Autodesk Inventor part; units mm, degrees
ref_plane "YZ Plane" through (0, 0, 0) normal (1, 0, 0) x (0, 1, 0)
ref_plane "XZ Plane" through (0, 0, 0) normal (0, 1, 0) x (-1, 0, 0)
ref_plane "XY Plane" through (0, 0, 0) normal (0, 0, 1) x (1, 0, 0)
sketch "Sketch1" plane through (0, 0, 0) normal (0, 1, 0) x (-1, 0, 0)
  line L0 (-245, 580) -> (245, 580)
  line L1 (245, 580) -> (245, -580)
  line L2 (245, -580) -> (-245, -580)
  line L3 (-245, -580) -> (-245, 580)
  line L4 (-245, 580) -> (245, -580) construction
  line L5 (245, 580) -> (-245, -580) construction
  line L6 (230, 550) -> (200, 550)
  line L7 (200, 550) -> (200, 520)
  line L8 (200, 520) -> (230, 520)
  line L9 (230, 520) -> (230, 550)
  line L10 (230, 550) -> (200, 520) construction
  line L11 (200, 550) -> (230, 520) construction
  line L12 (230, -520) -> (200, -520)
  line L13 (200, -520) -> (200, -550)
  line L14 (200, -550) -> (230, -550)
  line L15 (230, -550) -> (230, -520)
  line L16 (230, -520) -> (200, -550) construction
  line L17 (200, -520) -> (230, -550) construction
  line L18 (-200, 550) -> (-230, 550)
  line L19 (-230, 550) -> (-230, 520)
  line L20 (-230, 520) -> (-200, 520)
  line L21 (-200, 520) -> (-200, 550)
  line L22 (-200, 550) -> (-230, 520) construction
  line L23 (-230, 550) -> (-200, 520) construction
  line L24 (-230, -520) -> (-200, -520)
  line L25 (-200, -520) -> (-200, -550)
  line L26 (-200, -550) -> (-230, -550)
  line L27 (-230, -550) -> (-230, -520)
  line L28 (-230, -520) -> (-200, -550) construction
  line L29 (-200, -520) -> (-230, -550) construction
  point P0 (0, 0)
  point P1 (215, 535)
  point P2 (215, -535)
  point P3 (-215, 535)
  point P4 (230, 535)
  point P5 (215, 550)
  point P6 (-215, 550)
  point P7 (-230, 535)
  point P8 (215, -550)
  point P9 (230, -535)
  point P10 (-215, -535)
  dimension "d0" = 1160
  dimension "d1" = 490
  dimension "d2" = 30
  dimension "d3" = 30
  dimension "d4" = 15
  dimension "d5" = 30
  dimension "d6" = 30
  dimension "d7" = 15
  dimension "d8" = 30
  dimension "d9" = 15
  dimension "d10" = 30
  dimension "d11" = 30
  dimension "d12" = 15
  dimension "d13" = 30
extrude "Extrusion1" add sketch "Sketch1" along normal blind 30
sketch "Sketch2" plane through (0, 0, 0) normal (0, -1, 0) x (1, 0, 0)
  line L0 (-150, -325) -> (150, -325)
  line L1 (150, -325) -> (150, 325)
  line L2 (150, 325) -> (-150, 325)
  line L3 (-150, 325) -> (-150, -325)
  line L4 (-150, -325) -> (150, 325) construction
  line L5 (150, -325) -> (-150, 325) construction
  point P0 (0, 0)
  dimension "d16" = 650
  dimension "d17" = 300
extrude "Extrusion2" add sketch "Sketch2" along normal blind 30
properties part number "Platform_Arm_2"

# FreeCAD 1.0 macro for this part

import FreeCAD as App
import Part
import Sketcher

V = App.Vector

doc = App.newDocument("Part")
body = doc.addObject("PartDesign::Body", "Body")

# Sketch on XZ plane
sketch1 = doc.addObject("Sketcher::SketchObject", "Sketch")
body.addObject(sketch1)
sketch1.AttachmentSupport = (doc.XZ_Plane, [""])
sketch1.MapMode = "FlatFace"
sketch1.addGeometry(Part.LineSegment(V(-245, 580, 0), V(245, 580, 0)), False)
sketch1.addGeometry(Part.LineSegment(V(245, 580, 0), V(245, -580, 0)), False)
sketch1.addGeometry(Part.LineSegment(V(245, -580, 0), V(-245, -580, 0)), False)
sketch1.addGeometry(Part.LineSegment(V(-245, -580, 0), V(-245, 580, 0)), False)
sketch1.addGeometry(Part.LineSegment(V(230, -550, 0), V(230, -520, 0)), False)
sketch1.addGeometry(Part.LineSegment(V(230, -520, 0), V(200, -520, 0)), False)
sketch1.addGeometry(Part.LineSegment(V(200, -520, 0), V(200, -550, 0)), False)
sketch1.addGeometry(Part.LineSegment(V(200, -550, 0), V(230, -550, 0)), False)
sketch1.addGeometry(Part.LineSegment(V(-200, -520, 0), V(-230, -520, 0)), False)
sketch1.addGeometry(Part.LineSegment(V(-230, -520, 0), V(-230, -550, 0)), False)
sketch1.addGeometry(Part.LineSegment(V(-230, -550, 0), V(-200, -550, 0)), False)
sketch1.addGeometry(Part.LineSegment(V(-200, -550, 0), V(-200, -520, 0)), False)
sketch1.addGeometry(Part.LineSegment(V(230, 550, 0), V(200, 550, 0)), False)
sketch1.addGeometry(Part.LineSegment(V(200, 550, 0), V(200, 520, 0)), False)
sketch1.addGeometry(Part.LineSegment(V(200, 520, 0), V(230, 520, 0)), False)
sketch1.addGeometry(Part.LineSegment(V(230, 520, 0), V(230, 550, 0)), False)
sketch1.addGeometry(Part.LineSegment(V(-200, 550, 0), V(-230, 550, 0)), False)
sketch1.addGeometry(Part.LineSegment(V(-230, 550, 0), V(-230, 520, 0)), False)
sketch1.addGeometry(Part.LineSegment(V(-230, 520, 0), V(-200, 520, 0)), False)
sketch1.addGeometry(Part.LineSegment(V(-200, 520, 0), V(-200, 550, 0)), False)
sketch1.addConstraint(Sketcher.Constraint("Coincident", 0, 2, 1, 1))
sketch1.addConstraint(Sketcher.Constraint("Coincident", 1, 2, 2, 1))
sketch1.addConstraint(Sketcher.Constraint("Coincident", 2, 2, 3, 1))
sketch1.addConstraint(Sketcher.Constraint("Coincident", 3, 2, 0, 1))
sketch1.addConstraint(Sketcher.Constraint("Coincident", 4, 2, 5, 1))
sketch1.addConstraint(Sketcher.Constraint("Coincident", 5, 2, 6, 1))
sketch1.addConstraint(Sketcher.Constraint("Coincident", 6, 2, 7, 1))
sketch1.addConstraint(Sketcher.Constraint("Coincident", 7, 2, 4, 1))
sketch1.addConstraint(Sketcher.Constraint("Coincident", 8, 2, 9, 1))
sketch1.addConstraint(Sketcher.Constraint("Coincident", 9, 2, 10, 1))
sketch1.addConstraint(Sketcher.Constraint("Coincident", 10, 2, 11, 1))
sketch1.addConstraint(Sketcher.Constraint("Coincident", 11, 2, 8, 1))
sketch1.addConstraint(Sketcher.Constraint("Coincident", 12, 2, 13, 1))
sketch1.addConstraint(Sketcher.Constraint("Coincident", 13, 2, 14, 1))
sketch1.addConstraint(Sketcher.Constraint("Coincident", 14, 2, 15, 1))
sketch1.addConstraint(Sketcher.Constraint("Coincident", 15, 2, 12, 1))
sketch1.addConstraint(Sketcher.Constraint("Coincident", 16, 2, 17, 1))
sketch1.addConstraint(Sketcher.Constraint("Coincident", 17, 2, 18, 1))
sketch1.addConstraint(Sketcher.Constraint("Coincident", 18, 2, 19, 1))
sketch1.addConstraint(Sketcher.Constraint("Coincident", 19, 2, 16, 1))
sketch1.addConstraint(Sketcher.Constraint("Horizontal", 0))
sketch1.addConstraint(Sketcher.Constraint("Vertical", 1))
sketch1.addConstraint(Sketcher.Constraint("Horizontal", 2))
sketch1.addConstraint(Sketcher.Constraint("Vertical", 3))
sketch1.addConstraint(Sketcher.Constraint("Vertical", 4))
sketch1.addConstraint(Sketcher.Constraint("Horizontal", 5))
sketch1.addConstraint(Sketcher.Constraint("Vertical", 6))
sketch1.addConstraint(Sketcher.Constraint("Horizontal", 7))
sketch1.addConstraint(Sketcher.Constraint("Horizontal", 8))
sketch1.addConstraint(Sketcher.Constraint("Vertical", 9))
sketch1.addConstraint(Sketcher.Constraint("Horizontal", 10))
sketch1.addConstraint(Sketcher.Constraint("Vertical", 11))
sketch1.addConstraint(Sketcher.Constraint("Horizontal", 12))
sketch1.addConstraint(Sketcher.Constraint("Vertical", 13))
sketch1.addConstraint(Sketcher.Constraint("Horizontal", 14))
sketch1.addConstraint(Sketcher.Constraint("Vertical", 15))
sketch1.addConstraint(Sketcher.Constraint("Horizontal", 16))
sketch1.addConstraint(Sketcher.Constraint("Vertical", 17))
sketch1.addConstraint(Sketcher.Constraint("Horizontal", 18))
sketch1.addConstraint(Sketcher.Constraint("Vertical", 19))
sketch1.addConstraint(Sketcher.Constraint("Symmetric", 0, 2, 2, 2, -1, 1))
sketch1.addConstraint(Sketcher.Constraint("Symmetric", 10, 2, 12, 2, -1, 1))
sketch1.addConstraint(Sketcher.Constraint("Symmetric", 8, 2, 14, 2, -1, 1))
sketch1.addConstraint(Sketcher.Constraint("Symmetric", 7, 2, 16, 2, -1, 1))
sketch1.addConstraint(Sketcher.Constraint("Symmetric", 5, 2, 18, 2, -1, 1))
sketch1.addConstraint(Sketcher.Constraint("Symmetric", 4, 2, 8, 2, -2))
sketch1.addConstraint(Sketcher.Constraint("Symmetric", 6, 2, 10, 2, -2))
sketch1.addConstraint(Sketcher.Constraint("Equal", 18, 4))
sketch1.addConstraint(Sketcher.Constraint("DistanceX", 0, 1, 0, 2, 490.0))
sketch1.addConstraint(Sketcher.Constraint("DistanceX", 5, 2, 5, 1, 30.0))
sketch1.addConstraint(Sketcher.Constraint("DistanceY", 1, 2, 1, 1, 1160.0))
sketch1.addConstraint(Sketcher.Constraint("DistanceX", 4, 2, 1, 2, 15.0))
sketch1.addConstraint(Sketcher.Constraint("DistanceY", 1, 2, 6, 2, 30.0))
pad1 = doc.addObject("PartDesign::Pad", "Pad")
body.addObject(pad1)
pad1.Profile = sketch1
pad1.Length = 30
pad1.Reversed = True

# Sketch on XZ plane
sketch2 = doc.addObject("Sketcher::SketchObject", "Sketch001")
body.addObject(sketch2)
sketch2.AttachmentSupport = (doc.XZ_Plane, [""])
sketch2.MapMode = "FlatFace"
sketch2.addGeometry(Part.LineSegment(V(-150, 325, 0), V(-150, -325, 0)), False)
sketch2.addGeometry(Part.LineSegment(V(-150, -325, 0), V(150, -325, 0)), False)
sketch2.addGeometry(Part.LineSegment(V(150, -325, 0), V(150, 325, 0)), False)
sketch2.addGeometry(Part.LineSegment(V(150, 325, 0), V(-150, 325, 0)), False)
sketch2.addConstraint(Sketcher.Constraint("Coincident", 0, 2, 1, 1))
sketch2.addConstraint(Sketcher.Constraint("Coincident", 1, 2, 2, 1))
sketch2.addConstraint(Sketcher.Constraint("Coincident", 2, 2, 3, 1))
sketch2.addConstraint(Sketcher.Constraint("Coincident", 3, 2, 0, 1))
sketch2.addConstraint(Sketcher.Constraint("Vertical", 0))
sketch2.addConstraint(Sketcher.Constraint("Horizontal", 1))
sketch2.addConstraint(Sketcher.Constraint("Vertical", 2))
sketch2.addConstraint(Sketcher.Constraint("Horizontal", 3))
sketch2.addConstraint(Sketcher.Constraint("Symmetric", 0, 2, 2, 2, -1, 1))
sketch2.addConstraint(Sketcher.Constraint("DistanceX", 1, 1, 1, 2, 300.0))
sketch2.addConstraint(Sketcher.Constraint("DistanceY", 0, 2, 0, 1, 650.0))
pad2 = doc.addObject("PartDesign::Pad", "Pad001")
body.addObject(pad2)
pad2.Profile = sketch2
pad2.Length = 30

doc.recompute()
